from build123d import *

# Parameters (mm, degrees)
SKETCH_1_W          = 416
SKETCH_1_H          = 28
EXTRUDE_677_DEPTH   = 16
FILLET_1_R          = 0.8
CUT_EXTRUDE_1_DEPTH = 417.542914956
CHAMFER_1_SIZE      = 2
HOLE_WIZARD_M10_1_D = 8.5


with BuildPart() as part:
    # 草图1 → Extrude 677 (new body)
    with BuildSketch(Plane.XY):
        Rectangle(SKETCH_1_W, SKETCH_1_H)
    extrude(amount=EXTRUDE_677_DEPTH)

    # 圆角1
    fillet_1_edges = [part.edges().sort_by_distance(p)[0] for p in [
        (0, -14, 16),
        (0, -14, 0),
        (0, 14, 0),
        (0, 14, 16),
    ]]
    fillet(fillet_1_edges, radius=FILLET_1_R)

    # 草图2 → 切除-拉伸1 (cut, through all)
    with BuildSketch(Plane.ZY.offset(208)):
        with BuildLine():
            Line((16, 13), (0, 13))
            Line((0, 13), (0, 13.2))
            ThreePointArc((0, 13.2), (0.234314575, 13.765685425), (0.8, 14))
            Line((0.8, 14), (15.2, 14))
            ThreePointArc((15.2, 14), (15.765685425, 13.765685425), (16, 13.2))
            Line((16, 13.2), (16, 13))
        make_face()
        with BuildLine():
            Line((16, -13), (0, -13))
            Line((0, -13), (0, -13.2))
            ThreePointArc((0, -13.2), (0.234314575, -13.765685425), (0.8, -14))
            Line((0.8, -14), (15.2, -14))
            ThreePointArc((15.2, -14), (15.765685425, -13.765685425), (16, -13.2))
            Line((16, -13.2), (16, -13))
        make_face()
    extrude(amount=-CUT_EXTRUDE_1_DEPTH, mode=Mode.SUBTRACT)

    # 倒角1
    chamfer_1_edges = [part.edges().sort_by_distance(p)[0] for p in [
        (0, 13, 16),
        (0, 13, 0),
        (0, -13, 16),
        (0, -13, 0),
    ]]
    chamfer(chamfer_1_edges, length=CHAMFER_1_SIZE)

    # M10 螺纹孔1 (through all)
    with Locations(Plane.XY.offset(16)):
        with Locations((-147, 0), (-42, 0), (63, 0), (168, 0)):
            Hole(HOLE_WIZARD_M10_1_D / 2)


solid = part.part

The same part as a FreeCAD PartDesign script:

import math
import FreeCAD as App
import Part
import Sketcher

V = App.Vector


def edges_at(feature, points):
    """Names of the edges that pass closest to the given points."""
    edges = feature.Shape.Edges
    near = lambda p: min(range(len(edges)), key=lambda i: edges[i].distToShape(Part.Vertex(*p))[0])
    return sorted({f"Edge{near(p) + 1}" for p in points})

doc = App.newDocument("Part")
params = doc.addObject("Spreadsheet::Sheet", "Params")
for row, (alias, value) in enumerate([
    ("sketch1_width", "416 mm"),
    ("sketch1_height", "28 mm"),
    ("pad1_length", "16 mm"),
    ("fillet_radius", "0.8 mm"),
    ("sketch2_radius", "0.8 mm"),
    ("sketch2_height", "16 mm"),
    ("sketch2_width", "0.2 mm"),
    ("chamfer_size", "2 mm"),
    ("sketch3_diameter", "8.5 mm"),
    ("hole_diameter", "8.5 mm"),
], start=1):
    params.set(f"A{row}", alias)
    params.set(f"B{row}", "=" + value)
    params.setAlias(f"B{row}", alias)

body = doc.addObject("PartDesign::Body", "Body")

sketch1 = body.newObject("Sketcher::SketchObject", "Sketch")
sketch1.AttachmentSupport = (doc.getObject("XY_Plane"), [""])
sketch1.MapMode = "FlatFace"
sketch1.addGeometry(Part.LineSegment(V(-208, 14, 0), V(-208, -14, 0)), False)
sketch1.addGeometry(Part.LineSegment(V(-208, -14, 0), V(208, -14, 0)), False)
sketch1.addGeometry(Part.LineSegment(V(208, -14, 0), V(208, 14, 0)), False)
sketch1.addGeometry(Part.LineSegment(V(208, 14, 0), V(-208, 14, 0)), False)
sketch1.addConstraint(Sketcher.Constraint("Coincident", 0, 2, 1, 1))
sketch1.addConstraint(Sketcher.Constraint("Coincident", 1, 2, 2, 1))
sketch1.addConstraint(Sketcher.Constraint("Coincident", 2, 2, 3, 1))
sketch1.addConstraint(Sketcher.Constraint("Coincident", 3, 2, 0, 1))
sketch1.addConstraint(Sketcher.Constraint("Vertical", 0))
sketch1.addConstraint(Sketcher.Constraint("Horizontal", 1))
sketch1.addConstraint(Sketcher.Constraint("Vertical", 2))
sketch1.addConstraint(Sketcher.Constraint("Horizontal", 3))
sketch1.addConstraint(Sketcher.Constraint("Symmetric", 0, 2, 2, 2, -1, 1))
sketch1.addConstraint(Sketcher.Constraint("DistanceX", 1, 1, 1, 2, 416.0))
sketch1.addConstraint(Sketcher.Constraint("DistanceY", 0, 2, 0, 1, 28.0))
sketch1.setExpression("Constraints[9]", "Params.sketch1_width")
sketch1.setExpression("Constraints[10]", "Params.sketch1_height")
pad1 = body.newObject("PartDesign::Pad", "Pad")
pad1.Profile = sketch1
pad1.setExpression("Length", "Params.pad1_length")
doc.recompute()

fillet = body.newObject("PartDesign::Fillet", "Fillet")
fillet.Base = (pad1, edges_at(pad1, [
    (0, -14, 16),
    (0, -14, 0),
    (0, 14, 0),
    (0, 14, 16),
]))
fillet.setExpression("Radius", "Params.fillet_radius")

sketch2 = body.newObject("Sketcher::SketchObject", "Sketch001")
sketch2.AttachmentSupport = (doc.getObject("YZ_Plane"), [""])
sketch2.MapMode = "FlatFace"
sketch2.AttachmentOffset = App.Placement(V(0, 0, -208), App.Rotation())
sketch2.addGeometry(Part.LineSegment(V(13, 0, 0), V(13, 16, 0)), False)
sketch2.addGeometry(Part.LineSegment(V(13, 16, 0), V(13.2, 16, 0)), False)
sketch2.addGeometry(Part.ArcOfCircle(Part.Circle(V(13.2, 15.2, 0), V(0, 0, 1), 0.8), math.radians(0), math.radians(90)), False)
sketch2.addGeometry(Part.LineSegment(V(14, 15.2, 0), V(14, 0.8, 0)), False)
sketch2.addGeometry(Part.ArcOfCircle(Part.Circle(V(13.2, 0.8, 0), V(0, 0, 1), 0.8), math.radians(-90), math.radians(0)), False)
sketch2.addGeometry(Part.LineSegment(V(13.2, 0, 0), V(13, 0, 0)), False)
sketch2.addGeometry(Part.LineSegment(V(-13, 16, 0), V(-13, 0, 0)), False)
sketch2.addGeometry(Part.LineSegment(V(-13, 0, 0), V(-13.2, 0, 0)), False)
sketch2.addGeometry(Part.ArcOfCircle(Part.Circle(V(-13.2, 0.8, 0), V(0, 0, 1), 0.8), math.radians(180), math.radians(270)), False)
sketch2.addGeometry(Part.LineSegment(V(-14, 0.8, 0), V(-14, 15.2, 0)), False)
sketch2.addGeometry(Part.ArcOfCircle(Part.Circle(V(-13.2, 15.2, 0), V(0, 0, 1), 0.8), math.radians(90), math.radians(180)), False)
sketch2.addGeometry(Part.LineSegment(V(-13.2, 16, 0), V(-13, 16, 0)), False)
sketch2.addConstraint(Sketcher.Constraint("Coincident", 0, 2, 1, 1))
sketch2.addConstraint(Sketcher.Constraint("Tangent", 1, 2, 2, 2))
sketch2.addConstraint(Sketcher.Constraint("Tangent", 2, 1, 3, 1))
sketch2.addConstraint(Sketcher.Constraint("Tangent", 3, 2, 4, 2))
sketch2.addConstraint(Sketcher.Constraint("Tangent", 4, 1, 5, 1))
sketch2.addConstraint(Sketcher.Constraint("Coincident", 5, 2, 0, 1))
sketch2.addConstraint(Sketcher.Constraint("Coincident", 6, 2, 7, 1))
sketch2.addConstraint(Sketcher.Constraint("Tangent", 7, 2, 8, 2))
sketch2.addConstraint(Sketcher.Constraint("Tangent", 8, 1, 9, 1))
sketch2.addConstraint(Sketcher.Constraint("Tangent", 9, 2, 10, 2))
sketch2.addConstraint(Sketcher.Constraint("Tangent", 10, 1, 11, 1))
sketch2.addConstraint(Sketcher.Constraint("Coincident", 11, 2, 6, 1))
sketch2.addConstraint(Sketcher.Constraint("Vertical", 0))
sketch2.addConstraint(Sketcher.Constraint("Horizontal", 1))
sketch2.addConstraint(Sketcher.Constraint("Vertical", 3))
sketch2.addConstraint(Sketcher.Constraint("Horizontal", 5))
sketch2.addConstraint(Sketcher.Constraint("Vertical", 6))
sketch2.addConstraint(Sketcher.Constraint("Horizontal", 7))
sketch2.addConstraint(Sketcher.Constraint("Vertical", 9))
sketch2.addConstraint(Sketcher.Constraint("Horizontal", 11))
sketch2.addConstraint(Sketcher.Constraint("Equal", 2, 4))
sketch2.addConstraint(Sketcher.Constraint("Equal", 4, 8))
sketch2.addConstraint(Sketcher.Constraint("Equal", 8, 10))
sketch2.addConstraint(Sketcher.Constraint("Symmetric", 5, 2, 6, 2, -1, 1))
sketch2.addConstraint(Sketcher.Constraint("Symmetric", 4, 3, 8, 3, -2))
sketch2.addConstraint(Sketcher.Constraint("Horizontal", 2, 3, 10, 3))
sketch2.addConstraint(Sketcher.Constraint("Radius", 2, 0.8))
sketch2.addConstraint(Sketcher.Constraint("DistanceY", 0, 1, 0, 2, 16.0))
sketch2.addConstraint(Sketcher.Constraint("DistanceX", 1, 1, 1, 2, 0.2))
sketch2.addConstraint(Sketcher.Constraint("DistanceX", -1, 1, 0, 2, 13.0))
sketch2.setExpression("Constraints[26]", "Params.sketch2_radius")
sketch2.setExpression("Constraints[27]", "Params.sketch2_height")
sketch2.setExpression("Constraints[28]", "Params.sketch2_width")
pocket1 = body.newObject("PartDesign::Pocket", "Pocket")
pocket1.Profile = sketch2
pocket1.Type = "ThroughAll"
pocket1.Reversed = True
doc.recompute()

chamfer = body.newObject("PartDesign::Chamfer", "Chamfer")
chamfer.Base = (pocket1, edges_at(pocket1, [
    (0, 13, 16),
    (0, 13, 0),
    (0, -13, 16),
    (0, -13, 0),
]))
chamfer.setExpression("Size", "Params.chamfer_size")

sketch3 = body.newObject("Sketcher::SketchObject", "Sketch002")
sketch3.AttachmentSupport = (doc.getObject("XY_Plane"), [""])
sketch3.MapMode = "FlatFace"
sketch3.AttachmentOffset = App.Placement(V(0, 0, 16), App.Rotation())
sketch3.addGeometry(Part.Circle(V(-147, 0, 0), V(0, 0, 1), 4.2), False)
sketch3.addGeometry(Part.Circle(V(-42, 0, 0), V(0, 0, 1), 4.2), False)
sketch3.addGeometry(Part.Circle(V(63, 0, 0), V(0, 0, 1), 4.2), False)
sketch3.addGeometry(Part.Circle(V(168, 0, 0), V(0, 0, 1), 4.2), False)
sketch3.addConstraint(Sketcher.Constraint("Equal", 0, 1))
sketch3.addConstraint(Sketcher.Constraint("Equal", 1, 2))
sketch3.addConstraint(Sketcher.Constraint("Equal", 2, 3))
sketch3.addConstraint(Sketcher.Constraint("PointOnObject", 0, 3, -1))
sketch3.addConstraint(Sketcher.Constraint("PointOnObject", 1, 3, -1))
sketch3.addConstraint(Sketcher.Constraint("PointOnObject", 2, 3, -1))
sketch3.addConstraint(Sketcher.Constraint("PointOnObject", 3, 3, -1))
sketch3.addConstraint(Sketcher.Constraint("Diameter", 0, 8.5))
sketch3.addConstraint(Sketcher.Constraint("DistanceX", 0, 3, -1, 1, 147.0))
sketch3.addConstraint(Sketcher.Constraint("DistanceX", 1, 3, -1, 1, 42.0))
sketch3.addConstraint(Sketcher.Constraint("DistanceX", -1, 1, 2, 3, 63.0))
sketch3.addConstraint(Sketcher.Constraint("DistanceX", -1, 1, 3, 3, 168.0))
sketch3.setExpression("Constraints[7]", "Params.sketch3_diameter")
doc.recompute()
hole = body.newObject("PartDesign::Hole", "Hole")
hole.Profile = sketch3
hole.ThreadType = "None"
hole.setExpression("Diameter", "Params.hole_diameter")
hole.DepthType = "ThroughAll"

doc.recompute()
